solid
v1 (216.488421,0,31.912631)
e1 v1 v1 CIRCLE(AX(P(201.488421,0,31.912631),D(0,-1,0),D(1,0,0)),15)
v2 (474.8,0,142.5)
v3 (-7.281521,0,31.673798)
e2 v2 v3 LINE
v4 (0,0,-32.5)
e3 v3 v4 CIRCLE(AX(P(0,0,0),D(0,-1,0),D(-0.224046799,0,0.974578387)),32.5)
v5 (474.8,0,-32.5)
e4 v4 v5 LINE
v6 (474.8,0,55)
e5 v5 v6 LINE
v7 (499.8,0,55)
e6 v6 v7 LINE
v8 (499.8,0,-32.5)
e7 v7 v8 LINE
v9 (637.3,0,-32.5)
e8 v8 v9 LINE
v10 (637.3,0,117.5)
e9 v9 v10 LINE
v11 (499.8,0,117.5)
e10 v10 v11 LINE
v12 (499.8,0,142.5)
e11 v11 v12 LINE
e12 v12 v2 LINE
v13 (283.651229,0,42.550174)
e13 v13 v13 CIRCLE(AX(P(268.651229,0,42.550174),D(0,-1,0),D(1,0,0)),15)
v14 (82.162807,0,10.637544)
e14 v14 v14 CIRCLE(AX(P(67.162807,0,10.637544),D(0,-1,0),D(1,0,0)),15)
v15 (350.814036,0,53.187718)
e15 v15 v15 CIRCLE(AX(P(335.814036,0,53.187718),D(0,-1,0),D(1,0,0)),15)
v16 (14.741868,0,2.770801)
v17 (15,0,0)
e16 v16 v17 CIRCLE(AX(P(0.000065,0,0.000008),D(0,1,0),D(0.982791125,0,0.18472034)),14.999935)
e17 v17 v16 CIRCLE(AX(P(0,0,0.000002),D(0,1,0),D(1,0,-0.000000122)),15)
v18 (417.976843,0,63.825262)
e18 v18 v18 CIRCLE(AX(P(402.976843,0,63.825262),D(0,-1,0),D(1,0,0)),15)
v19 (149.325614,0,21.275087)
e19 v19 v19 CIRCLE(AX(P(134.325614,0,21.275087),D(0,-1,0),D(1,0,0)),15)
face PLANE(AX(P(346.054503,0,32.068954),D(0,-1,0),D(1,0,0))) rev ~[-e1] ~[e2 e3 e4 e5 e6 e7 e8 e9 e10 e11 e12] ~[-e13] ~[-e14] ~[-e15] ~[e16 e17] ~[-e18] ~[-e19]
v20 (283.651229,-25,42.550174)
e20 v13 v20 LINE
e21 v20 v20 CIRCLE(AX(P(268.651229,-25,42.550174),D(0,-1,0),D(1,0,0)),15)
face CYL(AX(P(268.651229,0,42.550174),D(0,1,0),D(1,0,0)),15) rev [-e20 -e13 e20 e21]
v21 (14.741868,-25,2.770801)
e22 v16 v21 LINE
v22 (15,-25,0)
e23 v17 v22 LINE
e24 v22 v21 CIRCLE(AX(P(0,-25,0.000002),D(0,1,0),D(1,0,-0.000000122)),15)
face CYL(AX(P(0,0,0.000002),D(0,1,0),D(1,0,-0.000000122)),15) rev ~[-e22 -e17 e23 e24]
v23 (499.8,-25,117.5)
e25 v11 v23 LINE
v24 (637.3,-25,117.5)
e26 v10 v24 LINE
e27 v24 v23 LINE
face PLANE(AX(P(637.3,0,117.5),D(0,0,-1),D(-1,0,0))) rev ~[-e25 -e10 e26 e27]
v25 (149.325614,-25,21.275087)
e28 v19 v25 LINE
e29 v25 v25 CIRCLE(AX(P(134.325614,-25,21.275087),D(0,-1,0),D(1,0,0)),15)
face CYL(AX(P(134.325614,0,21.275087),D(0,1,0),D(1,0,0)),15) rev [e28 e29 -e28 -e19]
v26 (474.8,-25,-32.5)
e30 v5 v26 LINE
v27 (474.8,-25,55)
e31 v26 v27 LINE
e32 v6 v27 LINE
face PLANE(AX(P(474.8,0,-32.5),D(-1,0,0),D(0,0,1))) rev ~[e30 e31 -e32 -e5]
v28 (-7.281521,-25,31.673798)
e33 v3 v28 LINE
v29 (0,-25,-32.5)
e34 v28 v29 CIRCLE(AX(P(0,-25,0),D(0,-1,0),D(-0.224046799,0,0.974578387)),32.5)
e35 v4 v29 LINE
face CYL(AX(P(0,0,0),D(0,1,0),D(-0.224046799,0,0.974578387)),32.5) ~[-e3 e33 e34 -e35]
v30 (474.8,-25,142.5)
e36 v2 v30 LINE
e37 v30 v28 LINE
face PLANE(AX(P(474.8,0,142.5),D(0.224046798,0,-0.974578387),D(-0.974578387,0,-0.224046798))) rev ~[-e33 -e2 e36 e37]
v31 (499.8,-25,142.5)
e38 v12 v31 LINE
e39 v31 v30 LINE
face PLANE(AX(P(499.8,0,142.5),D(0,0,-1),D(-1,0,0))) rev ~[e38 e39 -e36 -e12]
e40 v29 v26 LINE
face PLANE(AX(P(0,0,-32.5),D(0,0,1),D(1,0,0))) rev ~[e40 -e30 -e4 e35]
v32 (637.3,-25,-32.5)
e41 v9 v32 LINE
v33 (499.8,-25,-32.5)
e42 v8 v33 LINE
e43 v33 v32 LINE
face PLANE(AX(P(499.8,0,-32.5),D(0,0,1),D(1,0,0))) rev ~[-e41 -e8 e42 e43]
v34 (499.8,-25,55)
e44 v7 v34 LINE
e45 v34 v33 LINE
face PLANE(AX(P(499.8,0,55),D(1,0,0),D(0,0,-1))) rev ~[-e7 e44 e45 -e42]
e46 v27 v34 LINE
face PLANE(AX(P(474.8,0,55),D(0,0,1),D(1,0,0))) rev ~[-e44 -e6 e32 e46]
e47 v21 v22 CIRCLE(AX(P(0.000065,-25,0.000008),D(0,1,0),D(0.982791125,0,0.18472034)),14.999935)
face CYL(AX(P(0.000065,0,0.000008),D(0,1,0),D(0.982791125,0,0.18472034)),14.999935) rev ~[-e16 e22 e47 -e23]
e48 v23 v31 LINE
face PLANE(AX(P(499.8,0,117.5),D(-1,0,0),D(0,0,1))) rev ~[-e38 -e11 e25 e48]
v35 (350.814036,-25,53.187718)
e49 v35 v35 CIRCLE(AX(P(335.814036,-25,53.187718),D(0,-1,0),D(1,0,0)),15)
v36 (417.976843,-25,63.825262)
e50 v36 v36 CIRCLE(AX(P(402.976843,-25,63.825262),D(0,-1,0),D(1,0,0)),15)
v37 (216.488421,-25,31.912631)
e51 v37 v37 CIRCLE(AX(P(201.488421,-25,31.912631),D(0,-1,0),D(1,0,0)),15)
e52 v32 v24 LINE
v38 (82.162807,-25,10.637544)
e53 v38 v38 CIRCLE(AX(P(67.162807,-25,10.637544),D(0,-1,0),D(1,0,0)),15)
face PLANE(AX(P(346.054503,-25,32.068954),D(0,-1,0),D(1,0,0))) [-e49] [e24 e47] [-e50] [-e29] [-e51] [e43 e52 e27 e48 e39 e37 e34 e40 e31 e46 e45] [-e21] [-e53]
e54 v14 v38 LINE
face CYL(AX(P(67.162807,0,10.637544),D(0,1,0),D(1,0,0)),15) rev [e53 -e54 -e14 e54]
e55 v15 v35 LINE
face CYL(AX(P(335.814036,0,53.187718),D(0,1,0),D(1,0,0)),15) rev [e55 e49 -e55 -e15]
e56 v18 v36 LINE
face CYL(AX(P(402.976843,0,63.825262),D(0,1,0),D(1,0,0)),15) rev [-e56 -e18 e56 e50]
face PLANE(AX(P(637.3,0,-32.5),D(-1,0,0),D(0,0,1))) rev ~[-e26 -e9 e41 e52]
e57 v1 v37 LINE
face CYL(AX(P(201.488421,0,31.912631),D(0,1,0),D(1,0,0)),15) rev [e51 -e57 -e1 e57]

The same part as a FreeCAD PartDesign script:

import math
import FreeCAD as App
import Part
import Sketcher

V = App.Vector
Q = App.Units.Quantity

doc = App.newDocument("Part")
body = doc.addObject("PartDesign::Body", "Body")

# Sketch on XZ plane
sketch1 = doc.addObject("Sketcher::SketchObject", "Sketch")
body.addObject(sketch1)
sketch1.AttachmentSupport = (doc.XZ_Plane, [""])
sketch1.MapMode = "FlatFace"
sketch1.addGeometry([
    Part.LineSegment(V(474.8, 142.5, 0), V(-7.281521, 31.673798, 0)),  # 0
    Part.ArcOfCircle(Part.Circle(V(0, 0, 0), V(0, 0, 1), 32.5), math.radians(102.946833), math.radians(270)),  # 1
    Part.LineSegment(V(0, -32.5, 0), V(474.8, -32.5, 0)),  # 2
    Part.LineSegment(V(474.8, -32.5, 0), V(474.8, 55, 0)),  # 3
    Part.LineSegment(V(474.8, 55, 0), V(499.8, 55, 0)),  # 4
    Part.LineSegment(V(499.8, 55, 0), V(499.8, -32.5, 0)),  # 5
    Part.LineSegment(V(499.8, -32.5, 0), V(637.3, -32.5, 0)),  # 6
    Part.LineSegment(V(637.3, -32.5, 0), V(637.3, 117.5, 0)),  # 7
    Part.LineSegment(V(637.3, 117.5, 0), V(499.8, 117.5, 0)),  # 8
    Part.LineSegment(V(499.8, 117.5, 0), V(499.8, 142.5, 0)),  # 9
    Part.LineSegment(V(499.8, 142.5, 0), V(474.8, 142.5, 0)),  # 10
    Part.ArcOfCircle(Part.Circle(V(0, 0.000002, 0), V(0, 0, 1), 15), math.radians(10.644805), math.radians(359.999993)),  # 11
    Part.ArcOfCircle(Part.Circle(V(0.000065, 0.000008, 0), V(0, 0, 1), 14.999935), math.radians(-0.00003), math.radians(10.644828)),  # 12
    Part.Circle(V(67.162807, 10.637544, 0), V(0, 0, 1), 15),  # 13
    Part.Circle(V(134.325614, 21.275087, 0), V(0, 0, 1), 15),  # 14
    Part.Circle(V(201.488421, 31.912631, 0), V(0, 0, 1), 15),  # 15
    Part.Circle(V(268.651229, 42.550174, 0), V(0, 0, 1), 15),  # 16
    Part.Circle(V(335.814036, 53.187718, 0), V(0, 0, 1), 15),  # 17
    Part.Circle(V(402.976843, 63.825262, 0), V(0, 0, 1), 15),  # 18
], False)
sketch1.addConstraint([
    Sketcher.Constraint("Coincident", 0, 2, 1, 1),
    Sketcher.Constraint("Coincident", 1, 2, 2, 1),
    Sketcher.Constraint("Coincident", 2, 2, 3, 1),
    Sketcher.Constraint("Coincident", 3, 2, 4, 1),
    Sketcher.Constraint("Coincident", 4, 2, 5, 1),
    Sketcher.Constraint("Coincident", 5, 2, 6, 1),
    Sketcher.Constraint("Coincident", 6, 2, 7, 1),
    Sketcher.Constraint("Coincident", 7, 2, 8, 1),
    Sketcher.Constraint("Coincident", 8, 2, 9, 1),
    Sketcher.Constraint("Coincident", 9, 2, 10, 1),
    Sketcher.Constraint("Coincident", 10, 2, 0, 1),
    Sketcher.Constraint("Coincident", 11, 1, 12, 2),
    Sketcher.Constraint("Coincident", 12, 1, 11, 2),
    Sketcher.Constraint("Horizontal", 2),
    Sketcher.Constraint("Vertical", 3),
    Sketcher.Constraint("Horizontal", 4),
    Sketcher.Constraint("Vertical", 5),
    Sketcher.Constraint("Horizontal", 6),
    Sketcher.Constraint("Vertical", 7),
    Sketcher.Constraint("Horizontal", 8),
    Sketcher.Constraint("Vertical", 9),
    Sketcher.Constraint("Horizontal", 10),
    Sketcher.Constraint("Coincident", 1, 3, -1, 1),
    Sketcher.Constraint("Coincident", 11, 3, -1, 1),
    Sketcher.Constraint("PointOnObject", 1, 2, -2),
    Sketcher.Constraint("PointOnObject", 12, 1, -1),
    Sketcher.Constraint("Diameter", 13, Q("30 mm")),
    Sketcher.Constraint("Diameter", 14, Q("30 mm")),
    Sketcher.Constraint("Diameter", 15, Q("30 mm")),
    Sketcher.Constraint("Diameter", 16, Q("30 mm")),
    Sketcher.Constraint("Diameter", 17, Q("30 mm")),
    Sketcher.Constraint("Diameter", 18, Q("30 mm")),
    Sketcher.Constraint("Radius", 11, Q("15 mm")),
    Sketcher.Constraint("Radius", 1, Q("32.5 mm")),
    Sketcher.Constraint("DistanceX", 4, 1, 4, 2, Q("25 mm")),
    Sketcher.Constraint("DistanceX", 10, 2, 10, 1, Q("25 mm")),
    Sketcher.Constraint("DistanceY", 7, 1, 7, 2, Q("150 mm")),
    Sketcher.Constraint("DistanceY", 9, 1, 9, 2, Q("25 mm")),
    Sketcher.Constraint("DistanceX", 2, 1, 2, 2, Q("474.8 mm")),
    Sketcher.Constraint("DistanceX", 6, 1, 6, 2, Q("137.5 mm")),
    Sketcher.Constraint("DistanceX", 8, 2, 8, 1, Q("137.5 mm")),
    Sketcher.Constraint("DistanceY", 3, 1, 3, 2, Q("87.5 mm")),
    Sketcher.Constraint("DistanceY", 5, 2, 5, 1, Q("87.5 mm")),
    Sketcher.Constraint("Radius", 12, Q("14.999935 mm")),
    Sketcher.Constraint("DistanceY", -1, 1, 0, 2, Q("31.673798 mm")),
    Sketcher.Constraint("DistanceY", -1, 1, 11, 1, Q("2.770801 mm")),
    Sketcher.Constraint("DistanceX", -1, 1, 15, 3, Q("201.488421 mm")),
    Sketcher.Constraint("DistanceY", -1, 1, 15, 3, Q("31.912631 mm")),
    Sketcher.Constraint("DistanceX", -1, 1, 16, 3, Q("268.651229 mm")),
    Sketcher.Constraint("DistanceX", 12, 3, 13, 3, Q("67.162742 mm")),
    Sketcher.Constraint("DistanceX", 12, 3, 14, 3, Q("134.325549 mm")),
    Sketcher.Constraint("DistanceY", 12, 3, 14, 3, Q("21.275079 mm")),
    Sketcher.Constraint("DistanceY", 13, 3, 16, 3, Q("31.91263 mm")),
    Sketcher.Constraint("DistanceX", 14, 3, 17, 3, Q("201.488422 mm")),
    Sketcher.Constraint("DistanceY", 14, 3, 17, 3, Q("31.912631 mm")),
    Sketcher.Constraint("DistanceY", 16, 3, 18, 3, Q("21.275088 mm")),
    Sketcher.Constraint("DistanceX", 15, 3, 18, 3, Q("201.488422 mm")),
    Sketcher.Constraint("DistanceY", 15, 3, 18, 3, Q("31.912631 mm")),
])
pad1 = doc.addObject("PartDesign::Pad", "Pad")
body.addObject(pad1)
pad1.Profile = sketch1
pad1.Length = 25

doc.recompute()
